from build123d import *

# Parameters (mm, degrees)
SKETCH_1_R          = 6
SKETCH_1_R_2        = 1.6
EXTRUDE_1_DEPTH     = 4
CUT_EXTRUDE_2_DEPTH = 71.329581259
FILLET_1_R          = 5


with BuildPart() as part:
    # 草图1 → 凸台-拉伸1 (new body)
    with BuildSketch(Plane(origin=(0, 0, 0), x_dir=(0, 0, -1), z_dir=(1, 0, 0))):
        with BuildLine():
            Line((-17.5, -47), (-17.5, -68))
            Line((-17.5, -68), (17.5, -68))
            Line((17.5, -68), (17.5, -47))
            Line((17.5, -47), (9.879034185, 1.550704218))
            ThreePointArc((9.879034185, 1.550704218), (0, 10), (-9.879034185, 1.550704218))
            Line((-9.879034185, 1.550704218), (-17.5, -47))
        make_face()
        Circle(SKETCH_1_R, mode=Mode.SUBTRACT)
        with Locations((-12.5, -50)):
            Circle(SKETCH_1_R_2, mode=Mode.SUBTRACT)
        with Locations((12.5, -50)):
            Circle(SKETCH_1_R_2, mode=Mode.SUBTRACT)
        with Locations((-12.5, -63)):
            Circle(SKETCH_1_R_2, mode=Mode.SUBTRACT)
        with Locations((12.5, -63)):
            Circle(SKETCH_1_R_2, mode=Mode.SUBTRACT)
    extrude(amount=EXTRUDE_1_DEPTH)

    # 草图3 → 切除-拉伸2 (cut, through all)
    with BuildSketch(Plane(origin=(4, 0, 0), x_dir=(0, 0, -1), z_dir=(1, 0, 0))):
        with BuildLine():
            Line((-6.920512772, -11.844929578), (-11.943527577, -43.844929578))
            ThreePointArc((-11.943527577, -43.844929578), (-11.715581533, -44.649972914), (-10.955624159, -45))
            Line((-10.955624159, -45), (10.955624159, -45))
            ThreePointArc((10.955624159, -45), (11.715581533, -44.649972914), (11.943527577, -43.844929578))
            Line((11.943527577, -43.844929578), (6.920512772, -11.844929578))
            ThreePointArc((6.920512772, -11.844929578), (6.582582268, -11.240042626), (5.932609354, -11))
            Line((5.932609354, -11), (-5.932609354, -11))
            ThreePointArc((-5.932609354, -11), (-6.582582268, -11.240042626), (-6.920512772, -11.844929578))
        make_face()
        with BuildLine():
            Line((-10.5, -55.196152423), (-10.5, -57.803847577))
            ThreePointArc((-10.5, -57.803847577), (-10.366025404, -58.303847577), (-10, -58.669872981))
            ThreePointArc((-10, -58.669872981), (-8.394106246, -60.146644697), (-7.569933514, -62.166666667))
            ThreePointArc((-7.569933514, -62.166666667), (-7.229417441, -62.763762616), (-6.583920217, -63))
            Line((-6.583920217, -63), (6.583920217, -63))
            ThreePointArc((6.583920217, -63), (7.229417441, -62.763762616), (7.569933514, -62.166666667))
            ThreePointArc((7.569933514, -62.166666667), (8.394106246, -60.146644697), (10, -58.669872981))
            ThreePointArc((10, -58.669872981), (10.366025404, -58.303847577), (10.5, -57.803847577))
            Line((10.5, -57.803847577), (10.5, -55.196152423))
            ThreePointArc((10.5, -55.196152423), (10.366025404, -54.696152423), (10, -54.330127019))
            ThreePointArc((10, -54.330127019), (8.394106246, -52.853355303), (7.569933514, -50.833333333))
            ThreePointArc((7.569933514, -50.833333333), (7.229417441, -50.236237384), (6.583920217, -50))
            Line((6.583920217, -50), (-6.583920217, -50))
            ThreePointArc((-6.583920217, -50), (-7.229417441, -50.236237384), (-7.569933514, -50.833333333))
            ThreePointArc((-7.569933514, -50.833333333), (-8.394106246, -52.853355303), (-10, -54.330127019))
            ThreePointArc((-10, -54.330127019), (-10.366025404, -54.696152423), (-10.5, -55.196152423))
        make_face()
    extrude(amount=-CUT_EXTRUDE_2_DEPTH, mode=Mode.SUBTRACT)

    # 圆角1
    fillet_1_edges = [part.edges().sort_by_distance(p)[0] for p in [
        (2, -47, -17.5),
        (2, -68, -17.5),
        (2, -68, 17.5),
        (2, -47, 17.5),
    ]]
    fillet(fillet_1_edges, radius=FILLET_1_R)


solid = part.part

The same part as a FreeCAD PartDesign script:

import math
import FreeCAD as App
import Part
import Sketcher
from FreeCAD import Vector


def edges_at(feature, points):
    """Names of the edges that pass closest to the given points."""
    edges = feature.Shape.Edges
    near = lambda p: min(range(len(edges)), key=lambda i: edges[i].distToShape(Part.Vertex(*p))[0])
    return sorted({f"Edge{near(p) + 1}" for p in points})

doc = App.newDocument("Part")
body = doc.addObject("PartDesign::Body", "Body")

sketch1 = body.newObject("Sketcher::SketchObject", "Sketch")
sketch1.AttachmentSupport = (doc.getObject("YZ_Plane"), [""])
sketch1.MapMode = "FlatFace"
sketch1.addGeometry([
    Part.LineSegment(Vector(-47, 17.5, 0), Vector(-68, 17.5, 0)),
    Part.LineSegment(Vector(-68, 17.5, 0), Vector(-68, -17.5, 0)),
    Part.LineSegment(Vector(-68, -17.5, 0), Vector(-47, -17.5, 0)),
    Part.LineSegment(Vector(-47, -17.5, 0), Vector(1.550704, -9.879034, 0)),
    Part.ArcOfCircle(Part.Circle(Vector(0, 0, 0), Vector(0, 0, 1), 10), math.radians(-81.079119), math.radians(81.079119)),
    Part.LineSegment(Vector(1.550704, 9.879034, 0), Vector(-47, 17.5, 0)),
    Part.Circle(Vector(-63, 12.5, 0), Vector(0, 0, 1), 1.6),
    Part.Circle(Vector(-50, 12.5, 0), Vector(0, 0, 1), 1.6),
    Part.Circle(Vector(-63, -12.5, 0), Vector(0, 0, 1), 1.6),
    Part.Circle(Vector(-50, -12.5, 0), Vector(0, 0, 1), 1.6),
    Part.Circle(Vector(0, 0, 0), Vector(0, 0, 1), 6),
], False)
sketch1.addConstraint([
    Sketcher.Constraint("Coincident", 0, 2, 1, 1),
    Sketcher.Constraint("Coincident", 1, 2, 2, 1),
    Sketcher.Constraint("Coincident", 2, 2, 3, 1),
    Sketcher.Constraint("Tangent", 3, 2, 4, 1),
    Sketcher.Constraint("Tangent", 4, 2, 5, 1),
    Sketcher.Constraint("Coincident", 5, 2, 0, 1),
    Sketcher.Constraint("Horizontal", 0),
    Sketcher.Constraint("Vertical", 1),
    Sketcher.Constraint("Horizontal", 2),
    Sketcher.Constraint("Coincident", 4, 3, -1, 1),
    Sketcher.Constraint("Coincident", 10, 3, -1, 1),
    Sketcher.Constraint("Equal", 6, 7),
    Sketcher.Constraint("Equal", 7, 8),
    Sketcher.Constraint("Equal", 8, 9),
    Sketcher.Constraint("Symmetric", 6, 3, 8, 3, -1),
    Sketcher.Constraint("Symmetric", 7, 3, 9, 3, -1),
    Sketcher.Constraint("Symmetric", 2, 2, 5, 2, -1),
    Sketcher.Constraint("Horizontal", 6, 3, 7, 3),
    Sketcher.Constraint("Diameter", 10, 12.0),
    Sketcher.Constraint("Radius", 4, 10.0),
    Sketcher.Constraint("Diameter", 6, 3.2),
    Sketcher.Constraint("DistanceX", 0, 2, 0, 1, 21.0),
    Sketcher.Constraint("DistanceY", 1, 2, 1, 1, 35.0),
    Sketcher.Constraint("DistanceX", 6, 3, -1, 1, 63.0),
    Sketcher.Constraint("DistanceX", 7, 3, -1, 1, 50.0),
    Sketcher.Constraint("DistanceX", 0, 2, -1, 1, 68.0),
    Sketcher.Constraint("DistanceY", 8, 3, 6, 3, 25.0),
])
pad1 = body.newObject("PartDesign::Pad", "Pad")
pad1.Profile = sketch1
pad1.Length = 4

sketch2 = body.newObject("Sketcher::SketchObject", "Sketch001")
sketch2.AttachmentSupport = (doc.getObject("YZ_Plane"), [""])
sketch2.MapMode = "FlatFace"
sketch2.AttachmentOffset = App.Placement(Vector(0, 0, 4), App.Rotation())
sketch2.addGeometry([
    Part.LineSegment(Vector(-11.84493, 6.920513, 0), Vector(-43.84493, 11.943528, 0)),
    Part.ArcOfCircle(Part.Circle(Vector(-44, 10.955624, 0), Vector(0, 0, 1), 1), math.radians(81.079119), math.radians(180)),
    Part.LineSegment(Vector(-45, 10.955624, 0), Vector(-45, -10.955624, 0)),
    Part.ArcOfCircle(Part.Circle(Vector(-44, -10.955624, 0), Vector(0, 0, 1), 1), math.radians(-180), math.radians(-81.079119)),
    Part.LineSegment(Vector(-43.84493, -11.943528, 0), Vector(-11.84493, -6.920513, 0)),
    Part.ArcOfCircle(Part.Circle(Vector(-12, -5.932609, 0), Vector(0, 0, 1), 1), math.radians(-81.079119), math.radians(0)),
    Part.LineSegment(Vector(-11, -5.932609, 0), Vector(-11, 5.932609, 0)),
    Part.ArcOfCircle(Part.Circle(Vector(-12, 5.932609, 0), Vector(0, 0, 1), 1), math.radians(0), math.radians(81.079119)),
    Part.LineSegment(Vector(-55.196152, 10.5, 0), Vector(-57.803848, 10.5, 0)),
    Part.ArcOfCircle(Part.Circle(Vector(-57.803848, 9.5, 0), Vector(0, 0, 1), 1), math.radians(90), math.radians(150)),
    Part.ArcOfCircle(Part.Circle(Vector(-63, 12.5, 0), Vector(0, 0, 1), 5), math.radians(-80.405932), math.radians(-30)),
    Part.ArcOfCircle(Part.Circle(Vector(-62, 6.58392, 0), Vector(0, 0, 1), 1), math.radians(99.594068), math.radians(180)),
    Part.LineSegment(Vector(-63, 6.58392, 0), Vector(-63, -6.58392, 0)),
    Part.ArcOfCircle(Part.Circle(Vector(-62, -6.58392, 0), Vector(0, 0, 1), 1), math.radians(180), math.radians(260.405932)),
    Part.ArcOfCircle(Part.Circle(Vector(-63, -12.5, 0), Vector(0, 0, 1), 5), math.radians(30), math.radians(80.405932)),
    Part.ArcOfCircle(Part.Circle(Vector(-57.803848, -9.5, 0), Vector(0, 0, 1), 1), math.radians(-150), math.radians(-90)),
    Part.LineSegment(Vector(-57.803848, -10.5, 0), Vector(-55.196152, -10.5, 0)),
    Part.ArcOfCircle(Part.Circle(Vector(-55.196152, -9.5, 0), Vector(0, 0, 1), 1), math.radians(-90), math.radians(-30)),
    Part.ArcOfCircle(Part.Circle(Vector(-50, -12.5, 0), Vector(0, 0, 1), 5), math.radians(99.594068), math.radians(150)),
    Part.ArcOfCircle(Part.Circle(Vector(-51, -6.58392, 0), Vector(0, 0, 1), 1), math.radians(-80.405932), math.radians(0)),
    Part.LineSegment(Vector(-50, -6.58392, 0), Vector(-50, 6.58392, 0)),
    Part.ArcOfCircle(Part.Circle(Vector(-51, 6.58392, 0), Vector(0, 0, 1), 1), math.radians(0), math.radians(80.405932)),
    Part.ArcOfCircle(Part.Circle(Vector(-50, 12.5, 0), Vector(0, 0, 1), 5), math.radians(-150), math.radians(-99.594068)),
    Part.ArcOfCircle(Part.Circle(Vector(-55.196152, 9.5, 0), Vector(0, 0, 1), 1), math.radians(30), math.radians(90)),
], False)
sketch2.addConstraint([
    Sketcher.Constraint("Tangent", 0, 2, 1, 1),
    Sketcher.Constraint("Tangent", 1, 2, 2, 1),
    Sketcher.Constraint("Tangent", 2, 2, 3, 1),
    Sketcher.Constraint("Tangent", 3, 2, 4, 1),
    Sketcher.Constraint("Tangent", 4, 2, 5, 1),
    Sketcher.Constraint("Tangent", 5, 2, 6, 1),
    Sketcher.Constraint("Tangent", 6, 2, 7, 1),
    Sketcher.Constraint("Tangent", 7, 2, 0, 1),
    Sketcher.Constraint("Tangent", 8, 2, 9, 1),
    Sketcher.Constraint("Tangent", 9, 2, 10, 2),
    Sketcher.Constraint("Tangent", 10, 1, 11, 1),
    Sketcher.Constraint("Tangent", 11, 2, 12, 1),
    Sketcher.Constraint("Tangent", 12, 2, 13, 1),
    Sketcher.Constraint("Tangent", 13, 2, 14, 2),
    Sketcher.Constraint("Tangent", 14, 1, 15, 1),
    Sketcher.Constraint("Tangent", 15, 2, 16, 1),
    Sketcher.Constraint("Tangent", 16, 2, 17, 1),
    Sketcher.Constraint("Tangent", 17, 2, 18, 2),
    Sketcher.Constraint("Tangent", 18, 1, 19, 1),
    Sketcher.Constraint("Tangent", 19, 2, 20, 1),
    Sketcher.Constraint("Tangent", 20, 2, 21, 1),
    Sketcher.Constraint("Tangent", 21, 2, 22, 2),
    Sketcher.Constraint("Tangent", 22, 1, 23, 1),
    Sketcher.Constraint("Tangent", 23, 2, 8, 1),
    Sketcher.Constraint("Vertical", 2),
    Sketcher.Constraint("Vertical", 6),
    Sketcher.Constraint("Horizontal", 8),
    Sketcher.Constraint("Vertical", 12),
    Sketcher.Constraint("Horizontal", 16),
    Sketcher.Constraint("Vertical", 20),
    Sketcher.Constraint("Equal", 1, 3),
    Sketcher.Constraint("Equal", 3, 5),
    Sketcher.Constraint("Equal", 5, 7),
    Sketcher.Constraint("Equal", 7, 9),
    Sketcher.Constraint("Equal", 9, 11),
    Sketcher.Constraint("Equal", 11, 13),
    Sketcher.Constraint("Equal", 10, 14),
    Sketcher.Constraint("Equal", 13, 15),
    Sketcher.Constraint("Equal", 15, 17),
    Sketcher.Constraint("Equal", 14, 18),
    Sketcher.Constraint("Equal", 17, 19),
    Sketcher.Constraint("Equal", 19, 21),
    Sketcher.Constraint("Equal", 18, 22),
    Sketcher.Constraint("Equal", 21, 23),
    Sketcher.Constraint("Symmetric", 10, 3, 14, 3, -1),
    Sketcher.Constraint("Symmetric", 18, 3, 22, 3, -1),
    Sketcher.Constraint("Symmetric", 0, 2, 3, 2, -1),
    Sketcher.Constraint("Horizontal", 14, 3, 18, 3),
    Sketcher.Constraint("Horizontal", 13, 3, 19, 3),
    Sketcher.Constraint("Vertical", 9, 3, 15, 3),
    Sketcher.Constraint("Vertical", 14, 3, 11, 2),
    Sketcher.Constraint("Radius", 1, 1.0),
    Sketcher.Constraint("Radius", 10, 5.0),
    Sketcher.Constraint("DistanceX", 1, 3, -1, 1, 44.0),
    Sketcher.Constraint("DistanceX", 5, 3, -1, 1, 12.0),
    Sketcher.Constraint("DistanceX", 10, 3, -1, 1, 63.0),
    Sketcher.Constraint("DistanceX", 18, 3, -1, 1, 50.0),
    Sketcher.Constraint("DistanceY", -1, 1, 9, 2, 10.0),
    Sketcher.Constraint("DistanceY", 9, 3, 10, 3, 3.0),
    Sketcher.Constraint("DistanceY", 2, 2, 2, 1, 21.911248),
    Sketcher.Constraint("DistanceY", 6, 1, 6, 2, 11.865219),
])
pocket1 = body.newObject("PartDesign::Pocket", "Pocket")
pocket1.Profile = sketch2
pocket1.Type = "ThroughAll"
doc.recompute()

fillet = body.newObject("PartDesign::Fillet", "Fillet")
fillet.Base = (pocket1, edges_at(pocket1, [
    (2, -47, -17.5),
    (2, -68, -17.5),
    (2, -68, 17.5),
    (2, -47, 17.5),
]))
fillet.Radius = 5

doc.recompute()
